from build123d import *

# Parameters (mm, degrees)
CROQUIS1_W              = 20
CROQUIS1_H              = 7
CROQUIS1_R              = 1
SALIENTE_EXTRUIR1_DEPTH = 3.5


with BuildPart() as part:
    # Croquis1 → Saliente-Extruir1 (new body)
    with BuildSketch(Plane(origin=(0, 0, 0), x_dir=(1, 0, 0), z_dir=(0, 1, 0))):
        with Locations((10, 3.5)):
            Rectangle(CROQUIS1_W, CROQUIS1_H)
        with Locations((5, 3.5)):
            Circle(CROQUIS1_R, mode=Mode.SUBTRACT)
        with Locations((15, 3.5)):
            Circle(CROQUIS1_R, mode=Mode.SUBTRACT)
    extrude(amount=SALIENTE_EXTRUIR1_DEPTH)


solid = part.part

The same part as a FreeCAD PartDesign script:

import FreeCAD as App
import Part
import Sketcher
from FreeCAD import Vector


def add_polygon(sketch, points):
    """Adds a closed chain of lines whose ends are joined by coincident constraints."""
    first, n = sketch.GeometryCount, len(points)
    for a, b in zip(points, points[1:] + points[:1]):
        sketch.addGeometry(Part.LineSegment(App.Vector(*a, 0), App.Vector(*b, 0)), False)
    for i in range(n):
        sketch.addConstraint(Sketcher.Constraint("Coincident", first + i, 2, first + (i + 1) % n, 1))

doc = App.newDocument("Part")
body = doc.addObject("PartDesign::Body", "Body")

# Sketch on XZ plane
sketch1 = doc.addObject("Sketcher::SketchObject", "Sketch")
body.addObject(sketch1)
sketch1.AttachmentSupport = (doc.XZ_Plane, [""])
sketch1.MapMode = "FlatFace"
add_polygon(sketch1, [(0, -7), (0, 0), (20, 0), (20, -7)])  # lines 0-3
sketch1.addGeometry(Part.Circle(Vector(5, -3.5, 0), Vector(0, 0, 1), 1), False)  # 4
sketch1.addGeometry(Part.Circle(Vector(15, -3.5, 0), Vector(0, 0, 1), 1), False)  # 5
sketch1.addConstraint(Sketcher.Constraint("Vertical", 0))
sketch1.addConstraint(Sketcher.Constraint("Horizontal", 1))
sketch1.addConstraint(Sketcher.Constraint("Vertical", 2))
sketch1.addConstraint(Sketcher.Constraint("Horizontal", 3))
sketch1.addConstraint(Sketcher.Constraint("Coincident", 0, 2, -1, 1))
sketch1.addConstraint(Sketcher.Constraint("Equal", 4, 5))
sketch1.addConstraint(Sketcher.Constraint("Horizontal", 4, 3, 5, 3))
sketch1.addConstraint(Sketcher.Constraint("Diameter", 4, 2.0))
sketch1.addConstraint(Sketcher.Constraint("DistanceX", 1, 1, 1, 2, 20.0))
sketch1.addConstraint(Sketcher.Constraint("DistanceY", 0, 1, 0, 2, 7.0))
sketch1.addConstraint(Sketcher.Constraint("DistanceX", -1, 1, 4, 3, 5.0))
sketch1.addConstraint(Sketcher.Constraint("DistanceX", -1, 1, 5, 3, 15.0))
sketch1.addConstraint(Sketcher.Constraint("DistanceY", 4, 3, -1, 1, 3.5))
pad1 = doc.addObject("PartDesign::Pad", "Pad")
body.addObject(pad1)
pad1.Profile = sketch1
pad1.Length = 3.5
pad1.Reversed = True

doc.recompute()
